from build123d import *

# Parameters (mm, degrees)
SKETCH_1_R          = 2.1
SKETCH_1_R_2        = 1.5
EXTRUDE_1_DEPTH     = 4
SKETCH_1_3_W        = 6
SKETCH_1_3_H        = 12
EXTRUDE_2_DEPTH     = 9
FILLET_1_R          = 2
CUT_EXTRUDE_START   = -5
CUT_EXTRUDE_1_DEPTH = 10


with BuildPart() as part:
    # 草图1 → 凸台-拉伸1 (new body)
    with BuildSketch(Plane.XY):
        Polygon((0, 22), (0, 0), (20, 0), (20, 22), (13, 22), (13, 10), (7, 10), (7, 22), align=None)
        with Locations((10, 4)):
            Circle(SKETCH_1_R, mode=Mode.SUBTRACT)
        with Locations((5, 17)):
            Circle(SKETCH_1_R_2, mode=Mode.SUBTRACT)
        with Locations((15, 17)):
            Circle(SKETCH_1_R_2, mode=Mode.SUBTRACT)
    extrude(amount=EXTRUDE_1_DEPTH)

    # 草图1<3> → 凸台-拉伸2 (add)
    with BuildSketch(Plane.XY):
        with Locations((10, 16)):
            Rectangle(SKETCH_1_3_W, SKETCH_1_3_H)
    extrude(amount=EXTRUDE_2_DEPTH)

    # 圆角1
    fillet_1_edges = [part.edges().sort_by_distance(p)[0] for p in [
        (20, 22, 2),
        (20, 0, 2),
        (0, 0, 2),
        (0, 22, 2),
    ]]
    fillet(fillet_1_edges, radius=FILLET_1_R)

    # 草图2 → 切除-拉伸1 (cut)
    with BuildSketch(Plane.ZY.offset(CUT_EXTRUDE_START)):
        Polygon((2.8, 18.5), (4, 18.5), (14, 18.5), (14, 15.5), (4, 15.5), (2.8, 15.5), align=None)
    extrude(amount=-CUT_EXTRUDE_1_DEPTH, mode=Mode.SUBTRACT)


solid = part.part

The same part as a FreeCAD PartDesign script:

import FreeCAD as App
import Part
import Sketcher
from FreeCAD import Vector
Q = App.Units.Quantity


def edges_at(feature, points):
    """Names of the edges that pass closest to the given points."""
    edges = feature.Shape.Edges
    near = lambda p: min(range(len(edges)), key=lambda i: edges[i].distToShape(Part.Vertex(*p))[0])
    return sorted({f"Edge{near(p) + 1}" for p in points})


def add_polygon(sketch, points):
    """Adds a closed chain of lines whose ends are joined by coincident constraints."""
    first, n = sketch.GeometryCount, len(points)
    for a, b in zip(points, points[1:] + points[:1]):
        sketch.addGeometry(Part.LineSegment(App.Vector(*a, 0), App.Vector(*b, 0)), False)
    for i in range(n):
        sketch.addConstraint(Sketcher.Constraint("Coincident", first + i, 2, first + (i + 1) % n, 1))

doc = App.newDocument("Part")
body = doc.addObject("PartDesign::Body", "Body")

sketch1 = body.newObject("Sketcher::SketchObject", "Sketch")
sketch1.AttachmentSupport = (doc.getObject("XY_Plane"), [""])
sketch1.MapMode = "FlatFace"
add_polygon(sketch1, [(0, 22), (0, 0), (20, 0), (20, 22), (13, 22), (13, 10), (7, 10), (7, 22)])
sketch1.addGeometry(Part.Circle(Vector(10, 4, 0), Vector(0, 0, 1), 2.1), False)
sketch1.addGeometry(Part.Circle(Vector(5, 17, 0), Vector(0, 0, 1), 1.5), False)
sketch1.addGeometry(Part.Circle(Vector(15, 17, 0), Vector(0, 0, 1), 1.5), False)
sketch1.addConstraint(Sketcher.Constraint("Vertical", 0))
sketch1.addConstraint(Sketcher.Constraint("Horizontal", 1))
sketch1.addConstraint(Sketcher.Constraint("Vertical", 2))
sketch1.addConstraint(Sketcher.Constraint("Horizontal", 3))
sketch1.addConstraint(Sketcher.Constraint("Vertical", 4))
sketch1.addConstraint(Sketcher.Constraint("Horizontal", 5))
sketch1.addConstraint(Sketcher.Constraint("Vertical", 6))
sketch1.addConstraint(Sketcher.Constraint("Horizontal", 7))
sketch1.addConstraint(Sketcher.Constraint("Coincident", 0, 2, -1, 1))
sketch1.addConstraint(Sketcher.Constraint("Equal", 9, 10))
sketch1.addConstraint(Sketcher.Constraint("Horizontal", 9, 3, 10, 3))
sketch1.addConstraint(Sketcher.Constraint("Horizontal", 3, 2, 6, 2))
sketch1.addConstraint(Sketcher.Constraint("Equal", 3, 7))
sketch1.addConstraint(Sketcher.Constraint("Diameter", 9, Q("3 mm")))
sketch1.addConstraint(Sketcher.Constraint("Diameter", 8, Q("4.2 mm")))
sketch1.addConstraint(Sketcher.Constraint("DistanceX", 1, 1, 1, 2, Q("20 mm")))
sketch1.addConstraint(Sketcher.Constraint("DistanceX", 3, 2, 3, 1, Q("7 mm")))
sketch1.addConstraint(Sketcher.Constraint("DistanceY", 0, 2, 0, 1, Q("22 mm")))
sketch1.addConstraint(Sketcher.Constraint("DistanceY", 4, 2, 4, 1, Q("12 mm")))
sketch1.addConstraint(Sketcher.Constraint("DistanceX", -1, 1, 8, 3, Q("10 mm")))
sketch1.addConstraint(Sketcher.Constraint("DistanceY", -1, 1, 8, 3, Q("4 mm")))
sketch1.addConstraint(Sketcher.Constraint("DistanceX", -1, 1, 9, 3, Q("5 mm")))
sketch1.addConstraint(Sketcher.Constraint("DistanceY", -1, 1, 9, 3, Q("17 mm")))
sketch1.addConstraint(Sketcher.Constraint("DistanceX", -1, 1, 10, 3, Q("15 mm")))
pad1 = body.newObject("PartDesign::Pad", "Pad")
pad1.Profile = sketch1
pad1.Length = 4

sketch2 = body.newObject("Sketcher::SketchObject", "Sketch001")
sketch2.AttachmentSupport = (doc.getObject("XY_Plane"), [""])
sketch2.MapMode = "FlatFace"
add_polygon(sketch2, [(7, 22), (7, 10), (13, 10), (13, 22)])
sketch2.addConstraint(Sketcher.Constraint("Vertical", 0))
sketch2.addConstraint(Sketcher.Constraint("Horizontal", 1))
sketch2.addConstraint(Sketcher.Constraint("Vertical", 2))
sketch2.addConstraint(Sketcher.Constraint("Horizontal", 3))
sketch2.addConstraint(Sketcher.Constraint("DistanceX", 1, 1, 1, 2, Q("6 mm")))
sketch2.addConstraint(Sketcher.Constraint("DistanceY", 0, 2, 0, 1, Q("12 mm")))
sketch2.addConstraint(Sketcher.Constraint("DistanceX", -1, 1, 0, 2, Q("7 mm")))
sketch2.addConstraint(Sketcher.Constraint("DistanceY", -1, 1, 0, 2, Q("10 mm")))
pad2 = body.newObject("PartDesign::Pad", "Pad001")
pad2.Profile = sketch2
pad2.Length = 9
doc.recompute()

fillet = body.newObject("PartDesign::Fillet", "Fillet")
fillet.Base = (pad2, edges_at(pad2, [
    (20, 22, 2),
    (20, 0, 2),
    (0, 0, 2),
    (0, 22, 2),
]))
fillet.Radius = 2

sketch3 = body.newObject("Sketcher::SketchObject", "Sketch002")
sketch3.AttachmentSupport = (doc.getObject("YZ_Plane"), [""])
sketch3.MapMode = "FlatFace"
sketch3.AttachmentOffset = App.Placement(Vector(0, 0, 5), App.Rotation())
add_polygon(sketch3, [(18.5, 14), (18.5, 2.8), (15.5, 2.8), (15.5, 14)])
sketch3.addConstraint(Sketcher.Constraint("Vertical", 0))
sketch3.addConstraint(Sketcher.Constraint("Horizontal", 1))
sketch3.addConstraint(Sketcher.Constraint("Vertical", 2))
sketch3.addConstraint(Sketcher.Constraint("Horizontal", 3))
sketch3.addConstraint(Sketcher.Constraint("DistanceX", 1, 2, 1, 1, Q("3 mm")))
sketch3.addConstraint(Sketcher.Constraint("DistanceY", 0, 2, 0, 1, Q("11.2 mm")))
sketch3.addConstraint(Sketcher.Constraint("DistanceY", -1, 1, 2, 2, Q("14 mm")))
sketch3.addConstraint(Sketcher.Constraint("DistanceX", -1, 1, 0, 2, Q("18.5 mm")))
pocket1 = body.newObject("PartDesign::Pocket", "Pocket")
pocket1.Profile = sketch3
pocket1.Length = 10
pocket1.Reversed = True

doc.recompute()
